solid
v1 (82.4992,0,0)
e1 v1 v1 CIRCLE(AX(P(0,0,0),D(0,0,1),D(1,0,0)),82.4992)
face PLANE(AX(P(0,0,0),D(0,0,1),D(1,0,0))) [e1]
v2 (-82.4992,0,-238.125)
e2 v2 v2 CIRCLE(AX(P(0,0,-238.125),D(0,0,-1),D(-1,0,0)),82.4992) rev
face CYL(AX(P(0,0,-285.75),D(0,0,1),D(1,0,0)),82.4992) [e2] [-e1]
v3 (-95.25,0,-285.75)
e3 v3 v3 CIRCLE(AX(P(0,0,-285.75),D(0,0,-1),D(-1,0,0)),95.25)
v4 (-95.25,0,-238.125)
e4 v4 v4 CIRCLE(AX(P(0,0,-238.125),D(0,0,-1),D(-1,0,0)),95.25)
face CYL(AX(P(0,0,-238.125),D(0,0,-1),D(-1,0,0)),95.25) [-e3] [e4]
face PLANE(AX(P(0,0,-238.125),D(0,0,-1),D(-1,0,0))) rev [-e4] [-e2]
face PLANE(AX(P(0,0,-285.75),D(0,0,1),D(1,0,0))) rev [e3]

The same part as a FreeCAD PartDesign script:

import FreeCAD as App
import Part
import Sketcher
from FreeCAD import Vector
Q = App.Units.Quantity

doc = App.newDocument("Part")
body = doc.addObject("PartDesign::Body", "Body")

# Sketch on XY plane
sketch1 = body.newObject("Sketcher::SketchObject", "Sketch")
sketch1.AttachmentSupport = (doc.getObject("XY_Plane"), [""])
sketch1.MapMode = "FlatFace"
sketch1.addGeometry(Part.Circle(Vector(0, 0, 0), Vector(0, 0, 1), 82), False)
sketch1.addConstraint(Sketcher.Constraint("Coincident", 0, 3, -1, 1))
sketch1.addConstraint(Sketcher.Constraint("Diameter", 0, Q("6.496 in")))
pad1 = body.newObject("PartDesign::Pad", "Pad")
pad1.Profile = sketch1
pad1.Length = Q("11.25 in")
pad1.Reversed = True

# Sketch on XY plane
sketch2 = body.newObject("Sketcher::SketchObject", "Sketch001")
sketch2.AttachmentSupport = (doc.getObject("XY_Plane"), [""])
sketch2.MapMode = "FlatFace"
sketch2.AttachmentOffset = App.Placement(Vector(0, 0, -11.25 * 25.4), App.Rotation())
sketch2.addGeometry(Part.Circle(Vector(0, 0, 0), Vector(0, 0, 1), 95), False)
sketch2.addConstraint(Sketcher.Constraint("Coincident", 0, 3, -1, 1))
sketch2.addConstraint(Sketcher.Constraint("Diameter", 0, Q("7.5 in")))
pad2 = body.newObject("PartDesign::Pad", "Pad001")
pad2.Profile = sketch2
pad2.Length = Q("1.875 in")

doc.recompute()
